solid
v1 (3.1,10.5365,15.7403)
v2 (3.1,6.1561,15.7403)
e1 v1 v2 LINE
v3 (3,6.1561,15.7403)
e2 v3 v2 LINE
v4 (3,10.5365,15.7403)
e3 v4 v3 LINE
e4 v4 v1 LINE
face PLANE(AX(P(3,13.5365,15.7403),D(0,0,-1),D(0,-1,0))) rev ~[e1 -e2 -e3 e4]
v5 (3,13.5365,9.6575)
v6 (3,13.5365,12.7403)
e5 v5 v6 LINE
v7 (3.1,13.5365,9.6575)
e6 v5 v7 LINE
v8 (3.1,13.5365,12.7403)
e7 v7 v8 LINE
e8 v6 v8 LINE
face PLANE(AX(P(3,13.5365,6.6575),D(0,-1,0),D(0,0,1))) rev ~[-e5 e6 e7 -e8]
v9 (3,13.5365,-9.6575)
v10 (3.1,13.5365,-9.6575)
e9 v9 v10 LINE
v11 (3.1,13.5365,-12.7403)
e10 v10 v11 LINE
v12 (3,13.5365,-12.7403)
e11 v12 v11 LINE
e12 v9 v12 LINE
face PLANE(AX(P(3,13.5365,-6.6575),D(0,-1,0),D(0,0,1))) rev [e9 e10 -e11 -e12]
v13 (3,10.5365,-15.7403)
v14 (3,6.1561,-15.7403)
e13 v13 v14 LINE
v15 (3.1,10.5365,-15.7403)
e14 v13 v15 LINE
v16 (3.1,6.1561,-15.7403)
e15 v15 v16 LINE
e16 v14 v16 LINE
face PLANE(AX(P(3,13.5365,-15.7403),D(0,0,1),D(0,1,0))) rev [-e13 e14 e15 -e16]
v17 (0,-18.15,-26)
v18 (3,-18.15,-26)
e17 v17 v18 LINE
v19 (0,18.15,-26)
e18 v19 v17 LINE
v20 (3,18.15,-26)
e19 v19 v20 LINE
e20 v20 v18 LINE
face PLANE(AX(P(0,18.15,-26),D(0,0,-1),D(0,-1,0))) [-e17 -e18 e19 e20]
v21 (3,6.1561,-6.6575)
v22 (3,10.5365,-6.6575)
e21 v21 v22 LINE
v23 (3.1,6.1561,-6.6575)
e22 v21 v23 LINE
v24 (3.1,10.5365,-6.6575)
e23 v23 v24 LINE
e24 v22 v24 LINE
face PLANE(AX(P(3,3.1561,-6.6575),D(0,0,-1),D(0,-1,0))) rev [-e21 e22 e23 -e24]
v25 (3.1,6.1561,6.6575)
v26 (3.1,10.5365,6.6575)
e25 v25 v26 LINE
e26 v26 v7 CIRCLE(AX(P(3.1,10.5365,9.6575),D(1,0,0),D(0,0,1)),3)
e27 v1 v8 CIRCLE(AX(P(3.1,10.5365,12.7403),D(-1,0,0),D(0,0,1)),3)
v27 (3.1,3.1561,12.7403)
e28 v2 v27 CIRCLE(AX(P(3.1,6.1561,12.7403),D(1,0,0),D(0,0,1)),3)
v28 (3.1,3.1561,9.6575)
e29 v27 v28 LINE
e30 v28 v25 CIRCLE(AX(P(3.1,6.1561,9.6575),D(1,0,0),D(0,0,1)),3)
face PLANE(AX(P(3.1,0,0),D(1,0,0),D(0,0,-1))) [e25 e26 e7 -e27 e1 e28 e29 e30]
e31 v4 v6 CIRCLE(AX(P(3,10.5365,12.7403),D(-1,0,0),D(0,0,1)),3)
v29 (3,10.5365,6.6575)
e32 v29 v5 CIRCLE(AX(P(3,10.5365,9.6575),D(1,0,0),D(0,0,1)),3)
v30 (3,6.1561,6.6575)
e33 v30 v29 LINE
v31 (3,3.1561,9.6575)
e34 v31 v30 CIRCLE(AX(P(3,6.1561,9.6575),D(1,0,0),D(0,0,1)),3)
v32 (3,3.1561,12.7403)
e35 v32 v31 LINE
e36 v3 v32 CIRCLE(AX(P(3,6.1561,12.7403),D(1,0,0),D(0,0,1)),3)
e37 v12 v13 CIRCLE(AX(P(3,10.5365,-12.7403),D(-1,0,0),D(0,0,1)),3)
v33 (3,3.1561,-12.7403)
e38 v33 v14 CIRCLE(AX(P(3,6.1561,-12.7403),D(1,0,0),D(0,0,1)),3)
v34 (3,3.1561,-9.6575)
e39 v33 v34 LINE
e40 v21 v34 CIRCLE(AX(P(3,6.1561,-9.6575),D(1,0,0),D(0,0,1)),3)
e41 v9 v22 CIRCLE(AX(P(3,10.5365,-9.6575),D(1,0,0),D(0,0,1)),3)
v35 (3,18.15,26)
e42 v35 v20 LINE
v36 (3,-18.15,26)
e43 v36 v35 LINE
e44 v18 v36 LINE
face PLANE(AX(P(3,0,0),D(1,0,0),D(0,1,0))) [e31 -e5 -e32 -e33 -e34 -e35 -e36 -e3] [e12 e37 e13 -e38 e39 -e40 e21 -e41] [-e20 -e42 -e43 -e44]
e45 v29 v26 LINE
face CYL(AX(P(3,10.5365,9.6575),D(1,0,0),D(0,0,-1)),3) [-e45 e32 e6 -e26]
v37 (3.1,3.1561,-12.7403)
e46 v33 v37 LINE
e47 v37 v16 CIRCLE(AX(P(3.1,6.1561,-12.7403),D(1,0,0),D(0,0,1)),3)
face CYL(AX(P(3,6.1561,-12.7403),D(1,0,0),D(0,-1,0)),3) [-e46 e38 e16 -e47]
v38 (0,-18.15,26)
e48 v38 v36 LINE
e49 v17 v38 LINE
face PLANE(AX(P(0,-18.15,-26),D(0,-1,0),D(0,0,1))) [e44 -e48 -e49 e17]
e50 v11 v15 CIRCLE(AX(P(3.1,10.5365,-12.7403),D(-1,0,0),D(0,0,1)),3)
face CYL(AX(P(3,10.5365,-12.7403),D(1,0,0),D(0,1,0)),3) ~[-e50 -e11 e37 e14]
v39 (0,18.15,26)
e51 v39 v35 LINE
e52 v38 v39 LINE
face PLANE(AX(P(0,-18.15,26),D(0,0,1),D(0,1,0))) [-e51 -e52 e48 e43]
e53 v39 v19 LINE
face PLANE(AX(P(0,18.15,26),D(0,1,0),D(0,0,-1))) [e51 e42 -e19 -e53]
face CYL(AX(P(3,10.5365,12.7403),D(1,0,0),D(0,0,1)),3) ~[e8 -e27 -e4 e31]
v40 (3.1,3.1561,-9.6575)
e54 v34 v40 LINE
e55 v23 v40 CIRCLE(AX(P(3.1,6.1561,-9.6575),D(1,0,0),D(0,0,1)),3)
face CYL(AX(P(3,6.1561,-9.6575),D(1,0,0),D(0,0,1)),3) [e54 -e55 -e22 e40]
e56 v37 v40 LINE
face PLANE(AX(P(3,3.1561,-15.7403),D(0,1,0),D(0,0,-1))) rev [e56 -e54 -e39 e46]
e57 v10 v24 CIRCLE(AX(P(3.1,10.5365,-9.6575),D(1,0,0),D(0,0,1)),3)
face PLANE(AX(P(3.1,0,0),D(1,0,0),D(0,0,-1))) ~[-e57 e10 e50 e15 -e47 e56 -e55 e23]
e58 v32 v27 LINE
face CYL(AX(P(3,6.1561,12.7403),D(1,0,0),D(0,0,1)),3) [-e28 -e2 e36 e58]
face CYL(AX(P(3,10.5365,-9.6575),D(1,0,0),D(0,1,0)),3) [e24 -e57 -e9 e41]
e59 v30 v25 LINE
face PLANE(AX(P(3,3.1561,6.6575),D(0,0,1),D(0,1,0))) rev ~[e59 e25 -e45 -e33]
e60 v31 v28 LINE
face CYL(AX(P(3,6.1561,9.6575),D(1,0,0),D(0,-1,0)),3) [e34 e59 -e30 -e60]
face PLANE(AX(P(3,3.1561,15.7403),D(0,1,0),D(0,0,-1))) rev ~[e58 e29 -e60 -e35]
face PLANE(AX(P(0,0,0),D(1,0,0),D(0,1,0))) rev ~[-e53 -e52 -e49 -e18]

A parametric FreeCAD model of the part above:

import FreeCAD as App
import Part
import Sketcher
from FreeCAD import Vector


def edges_at(feature, points):
    """Names of the edges that pass closest to the given points."""
    edges = feature.Shape.Edges
    near = lambda p: min(range(len(edges)), key=lambda i: edges[i].distToShape(Part.Vertex(*p))[0])
    return sorted({f"Edge{near(p) + 1}" for p in points})


def add_polygon(sketch, points):
    """Adds a closed chain of lines whose ends are joined by coincident constraints."""
    first, n = sketch.GeometryCount, len(points)
    for a, b in zip(points, points[1:] + points[:1]):
        sketch.addGeometry(Part.LineSegment(App.Vector(*a, 0), App.Vector(*b, 0)), False)
    for i in range(n):
        sketch.addConstraint(Sketcher.Constraint("Coincident", first + i, 2, first + (i + 1) % n, 1))

doc = App.newDocument("Part")
params = doc.addObject("Spreadsheet::Sheet", "Params")
for row, (alias, value) in enumerate([
    ("sketch1_height", "52 mm"),
    ("sketch1_width", "36.3 mm"),
    ("pad1_length", "3 mm"),
    ("pad2_length", "0.1 mm"),
    ("fillet_radius", "3 mm"),
], start=1):
    params.set(f"A{row}", alias)
    params.set(f"B{row}", "=" + value)
    params.setAlias(f"B{row}", alias)

body = doc.addObject("PartDesign::Body", "Body")

# Sketch on YZ plane
sketch1 = body.newObject("Sketcher::SketchObject", "Sketch")
sketch1.AttachmentSupport = (doc.getObject("YZ_Plane"), [""])
sketch1.MapMode = "FlatFace"
add_polygon(sketch1, [(18, 26), (-18, 26), (-18, -26), (18, -26)])  # lines 0-3
sketch1.addConstraint(Sketcher.Constraint("Horizontal", 0))
sketch1.addConstraint(Sketcher.Constraint("Vertical", 1))
sketch1.addConstraint(Sketcher.Constraint("Horizontal", 2))
sketch1.addConstraint(Sketcher.Constraint("Vertical", 3))
sketch1.addConstraint(Sketcher.Constraint("Symmetric", 0, 2, 2, 2, -1, 1))
sketch1.addConstraint(Sketcher.Constraint("DistanceY", 1, 2, 1, 1, 52.0))
sketch1.addConstraint(Sketcher.Constraint("DistanceX", 0, 2, 0, 1, 36.3))
sketch1.setExpression("Constraints[9]", "Params.sketch1_height")
sketch1.setExpression("Constraints[10]", "Params.sketch1_width")
pad1 = body.newObject("PartDesign::Pad", "Pad")
pad1.Profile = sketch1
pad1.setExpression("Length", "Params.pad1_length")

# Sketch on YZ plane
sketch2 = body.newObject("Sketcher::SketchObject", "Sketch001")
sketch2.AttachmentSupport = (doc.getObject("YZ_Plane"), [""])
sketch2.MapMode = "FlatFace"
sketch2.AttachmentOffset = App.Placement(Vector(0, 0, 3), App.Rotation())
add_polygon(sketch2, [(14, 16), (3, 16), (3, 7), (14, 7)])  # lines 0-3
sketch2.addConstraint(Sketcher.Constraint("Horizontal", 0))
sketch2.addConstraint(Sketcher.Constraint("Vertical", 1))
sketch2.addConstraint(Sketcher.Constraint("Horizontal", 2))
sketch2.addConstraint(Sketcher.Constraint("Vertical", 3))
sketch2.addConstraint(Sketcher.Constraint("DistanceX", 0, 2, 0, 1, 10.3804))
sketch2.addConstraint(Sketcher.Constraint("DistanceY", 1, 2, 1, 1, 9.0828))
sketch2.addConstraint(Sketcher.Constraint("DistanceX", -1, 1, 0, 2, 3.156))
sketch2.addConstraint(Sketcher.Constraint("DistanceY", -1, 1, 0, 2, 15.7403))
pad2 = body.newObject("PartDesign::Pad", "Pad001")
pad2.Profile = sketch2
pad2.setExpression("Length", "Params.pad2_length")
doc.recompute()

fillet = body.newObject("PartDesign::Fillet", "Fillet")
fillet.Base = (pad2, edges_at(pad2, [
    (3.05, 13.537, 15.74),
    (3.05, 13.537, 6.657),
    (3.05, 3.156, 15.74),
    (3.05, 3.156, 6.657),
]))
fillet.setExpression("Radius", "Params.fillet_radius")
doc.recompute()

mirrored = body.newObject("PartDesign::Mirrored", "Mirrored")
mirrored.Originals = [pad2, fillet]
mirrored.MirrorPlane = (doc.getObject("XY_Plane"), [""])
body.Tip = mirrored

doc.recompute()
